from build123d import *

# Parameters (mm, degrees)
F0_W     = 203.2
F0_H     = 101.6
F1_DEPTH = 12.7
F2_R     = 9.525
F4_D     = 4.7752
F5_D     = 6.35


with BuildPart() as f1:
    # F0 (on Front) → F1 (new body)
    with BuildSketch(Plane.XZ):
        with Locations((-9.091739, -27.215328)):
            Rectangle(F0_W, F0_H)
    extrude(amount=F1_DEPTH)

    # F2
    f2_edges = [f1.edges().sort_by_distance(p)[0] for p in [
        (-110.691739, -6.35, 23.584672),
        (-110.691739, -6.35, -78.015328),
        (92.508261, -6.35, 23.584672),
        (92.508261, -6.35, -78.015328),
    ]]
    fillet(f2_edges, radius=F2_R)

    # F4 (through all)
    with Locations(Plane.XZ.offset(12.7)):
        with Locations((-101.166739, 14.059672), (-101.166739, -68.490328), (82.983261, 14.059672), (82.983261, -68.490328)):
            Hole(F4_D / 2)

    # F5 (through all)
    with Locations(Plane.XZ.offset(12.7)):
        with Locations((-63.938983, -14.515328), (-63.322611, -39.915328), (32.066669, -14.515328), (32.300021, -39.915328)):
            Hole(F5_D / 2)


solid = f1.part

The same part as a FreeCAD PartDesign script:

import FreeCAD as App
import Part
import Sketcher

V = App.Vector
Q = App.Units.Quantity


def edges_at(feature, points):
    """Names of the edges that pass closest to the given points."""
    edges = feature.Shape.Edges
    near = lambda p: min(range(len(edges)), key=lambda i: edges[i].distToShape(Part.Vertex(*p))[0])
    return sorted({f"Edge{near(p) + 1}" for p in points})


def add_polygon(sketch, points):
    """Adds a closed chain of lines whose ends are joined by coincident constraints."""
    first, n = sketch.GeometryCount, len(points)
    for a, b in zip(points, points[1:] + points[:1]):
        sketch.addGeometry(Part.LineSegment(App.Vector(*a, 0), App.Vector(*b, 0)), False)
    for i in range(n):
        sketch.addConstraint(Sketcher.Constraint("Coincident", first + i, 2, first + (i + 1) % n, 1))

doc = App.newDocument("Part")
body = doc.addObject("PartDesign::Body", "Body")

sketch1 = doc.addObject("Sketcher::SketchObject", "Sketch")
body.addObject(sketch1)
sketch1.AttachmentSupport = (doc.XZ_Plane, [""])
sketch1.MapMode = "FlatFace"
add_polygon(sketch1, [(-111, 24), (-111, -78), (93, -78), (93, 24)])
sketch1.addConstraint(Sketcher.Constraint("Vertical", 0))
sketch1.addConstraint(Sketcher.Constraint("Horizontal", 1))
sketch1.addConstraint(Sketcher.Constraint("Vertical", 2))
sketch1.addConstraint(Sketcher.Constraint("Horizontal", 3))
sketch1.addConstraint(Sketcher.Constraint("DistanceX", 1, 1, 1, 2, Q("8 in")))
sketch1.addConstraint(Sketcher.Constraint("DistanceY", 0, 2, 0, 1, Q("4 in")))
sketch1.addConstraint(Sketcher.Constraint("DistanceX", 0, 2, -1, 1, Q("110.691739 mm")))
sketch1.addConstraint(Sketcher.Constraint("DistanceY", 0, 2, -1, 1, Q("78.015328 mm")))
pad1 = doc.addObject("PartDesign::Pad", "Pad")
body.addObject(pad1)
pad1.Profile = sketch1
pad1.Length = Q("0.5 in")
doc.recompute()

fillet = doc.addObject("PartDesign::Fillet", "Fillet")
body.addObject(fillet)
fillet.Base = (pad1, edges_at(pad1, [
    (-110.692, -6.35, 23.585),
    (-110.692, -6.35, -78.015),
    (92.508, -6.35, 23.585),
    (92.508, -6.35, -78.015),
]))
fillet.Radius = Q("0.375 in")

sketch2 = doc.addObject("Sketcher::SketchObject", "Sketch001")
body.addObject(sketch2)
sketch2.AttachmentSupport = (doc.XZ_Plane, [""])
sketch2.MapMode = "FlatFace"
sketch2.AttachmentOffset = App.Placement(V(0, 0, 0.5 * 25.4), App.Rotation())
sketch2.addGeometry(Part.Circle(V(-101.2, 14.1, 0), V(0, 0, 1), 2.4), False)
sketch2.addGeometry(Part.Circle(V(-101.2, -68.5, 0), V(0, 0, 1), 2.4), False)
sketch2.addGeometry(Part.Circle(V(83, 14.1, 0), V(0, 0, 1), 2.4), False)
sketch2.addGeometry(Part.Circle(V(83, -68.5, 0), V(0, 0, 1), 2.4), False)
sketch2.addConstraint(Sketcher.Constraint("Equal", 0, 1))
sketch2.addConstraint(Sketcher.Constraint("Equal", 1, 2))
sketch2.addConstraint(Sketcher.Constraint("Equal", 2, 3))
sketch2.addConstraint(Sketcher.Constraint("Horizontal", 0, 3, 2, 3))
sketch2.addConstraint(Sketcher.Constraint("Horizontal", 1, 3, 3, 3))
sketch2.addConstraint(Sketcher.Constraint("Vertical", 0, 3, 1, 3))
sketch2.addConstraint(Sketcher.Constraint("Vertical", 2, 3, 3, 3))
sketch2.addConstraint(Sketcher.Constraint("Diameter", 0, Q("0.188 in")))
sketch2.addConstraint(Sketcher.Constraint("DistanceY", 1, 3, 0, 3, Q("3.25 in")))
sketch2.addConstraint(Sketcher.Constraint("DistanceX", 0, 3, 2, 3, Q("7.25 in")))
sketch2.addConstraint(Sketcher.Constraint("DistanceX", 0, 3, -1, 1, Q("101.166739 mm")))
sketch2.addConstraint(Sketcher.Constraint("DistanceY", 1, 3, -1, 1, Q("68.490328 mm")))
doc.recompute()
hole = doc.addObject("PartDesign::Hole", "Hole")
body.addObject(hole)
hole.Profile = sketch2
hole.ThreadType = "None"
hole.Diameter = Q("0.188 in")
hole.DepthType = "ThroughAll"

sketch3 = doc.addObject("Sketcher::SketchObject", "Sketch002")
body.addObject(sketch3)
sketch3.AttachmentSupport = (doc.XZ_Plane, [""])
sketch3.MapMode = "FlatFace"
sketch3.AttachmentOffset = App.Placement(V(0, 0, 0.5 * 25.4), App.Rotation())
sketch3.addGeometry(Part.Circle(V(-63.9, -14.5, 0), V(0, 0, 1), 3.2), False)
sketch3.addGeometry(Part.Circle(V(-63.3, -39.9, 0), V(0, 0, 1), 3.2), False)
sketch3.addGeometry(Part.Circle(V(32.1, -14.5, 0), V(0, 0, 1), 3.2), False)
sketch3.addGeometry(Part.Circle(V(32.3, -39.9, 0), V(0, 0, 1), 3.2), False)
sketch3.addConstraint(Sketcher.Constraint("Equal", 0, 1))
sketch3.addConstraint(Sketcher.Constraint("Equal", 1, 2))
sketch3.addConstraint(Sketcher.Constraint("Equal", 2, 3))
sketch3.addConstraint(Sketcher.Constraint("Horizontal", 0, 3, 2, 3))
sketch3.addConstraint(Sketcher.Constraint("Horizontal", 1, 3, 3, 3))
sketch3.addConstraint(Sketcher.Constraint("Diameter", 0, Q("0.25 in")))
sketch3.addConstraint(Sketcher.Constraint("DistanceY", 1, 3, 0, 3, Q("1 in")))
sketch3.addConstraint(Sketcher.Constraint("DistanceX", 1, 3, -1, 1, Q("63.322611 mm")))
sketch3.addConstraint(Sketcher.Constraint("DistanceY", 1, 3, -1, 1, Q("39.915328 mm")))
sketch3.addConstraint(Sketcher.Constraint("DistanceX", -1, 1, 2, 3, Q("32.066669 mm")))
sketch3.addConstraint(Sketcher.Constraint("DistanceX", -1, 1, 3, 3, Q("32.300021 mm")))
sketch3.addConstraint(Sketcher.Constraint("DistanceX", 0, 3, 1, 3, Q("0.616372 mm")))
doc.recompute()
hole2 = doc.addObject("PartDesign::Hole", "Hole001")
body.addObject(hole2)
hole2.Profile = sketch3
hole2.ThreadType = "None"
hole2.Diameter = Q("0.25 in")
hole2.DepthType = "ThroughAll"

doc.recompute()
